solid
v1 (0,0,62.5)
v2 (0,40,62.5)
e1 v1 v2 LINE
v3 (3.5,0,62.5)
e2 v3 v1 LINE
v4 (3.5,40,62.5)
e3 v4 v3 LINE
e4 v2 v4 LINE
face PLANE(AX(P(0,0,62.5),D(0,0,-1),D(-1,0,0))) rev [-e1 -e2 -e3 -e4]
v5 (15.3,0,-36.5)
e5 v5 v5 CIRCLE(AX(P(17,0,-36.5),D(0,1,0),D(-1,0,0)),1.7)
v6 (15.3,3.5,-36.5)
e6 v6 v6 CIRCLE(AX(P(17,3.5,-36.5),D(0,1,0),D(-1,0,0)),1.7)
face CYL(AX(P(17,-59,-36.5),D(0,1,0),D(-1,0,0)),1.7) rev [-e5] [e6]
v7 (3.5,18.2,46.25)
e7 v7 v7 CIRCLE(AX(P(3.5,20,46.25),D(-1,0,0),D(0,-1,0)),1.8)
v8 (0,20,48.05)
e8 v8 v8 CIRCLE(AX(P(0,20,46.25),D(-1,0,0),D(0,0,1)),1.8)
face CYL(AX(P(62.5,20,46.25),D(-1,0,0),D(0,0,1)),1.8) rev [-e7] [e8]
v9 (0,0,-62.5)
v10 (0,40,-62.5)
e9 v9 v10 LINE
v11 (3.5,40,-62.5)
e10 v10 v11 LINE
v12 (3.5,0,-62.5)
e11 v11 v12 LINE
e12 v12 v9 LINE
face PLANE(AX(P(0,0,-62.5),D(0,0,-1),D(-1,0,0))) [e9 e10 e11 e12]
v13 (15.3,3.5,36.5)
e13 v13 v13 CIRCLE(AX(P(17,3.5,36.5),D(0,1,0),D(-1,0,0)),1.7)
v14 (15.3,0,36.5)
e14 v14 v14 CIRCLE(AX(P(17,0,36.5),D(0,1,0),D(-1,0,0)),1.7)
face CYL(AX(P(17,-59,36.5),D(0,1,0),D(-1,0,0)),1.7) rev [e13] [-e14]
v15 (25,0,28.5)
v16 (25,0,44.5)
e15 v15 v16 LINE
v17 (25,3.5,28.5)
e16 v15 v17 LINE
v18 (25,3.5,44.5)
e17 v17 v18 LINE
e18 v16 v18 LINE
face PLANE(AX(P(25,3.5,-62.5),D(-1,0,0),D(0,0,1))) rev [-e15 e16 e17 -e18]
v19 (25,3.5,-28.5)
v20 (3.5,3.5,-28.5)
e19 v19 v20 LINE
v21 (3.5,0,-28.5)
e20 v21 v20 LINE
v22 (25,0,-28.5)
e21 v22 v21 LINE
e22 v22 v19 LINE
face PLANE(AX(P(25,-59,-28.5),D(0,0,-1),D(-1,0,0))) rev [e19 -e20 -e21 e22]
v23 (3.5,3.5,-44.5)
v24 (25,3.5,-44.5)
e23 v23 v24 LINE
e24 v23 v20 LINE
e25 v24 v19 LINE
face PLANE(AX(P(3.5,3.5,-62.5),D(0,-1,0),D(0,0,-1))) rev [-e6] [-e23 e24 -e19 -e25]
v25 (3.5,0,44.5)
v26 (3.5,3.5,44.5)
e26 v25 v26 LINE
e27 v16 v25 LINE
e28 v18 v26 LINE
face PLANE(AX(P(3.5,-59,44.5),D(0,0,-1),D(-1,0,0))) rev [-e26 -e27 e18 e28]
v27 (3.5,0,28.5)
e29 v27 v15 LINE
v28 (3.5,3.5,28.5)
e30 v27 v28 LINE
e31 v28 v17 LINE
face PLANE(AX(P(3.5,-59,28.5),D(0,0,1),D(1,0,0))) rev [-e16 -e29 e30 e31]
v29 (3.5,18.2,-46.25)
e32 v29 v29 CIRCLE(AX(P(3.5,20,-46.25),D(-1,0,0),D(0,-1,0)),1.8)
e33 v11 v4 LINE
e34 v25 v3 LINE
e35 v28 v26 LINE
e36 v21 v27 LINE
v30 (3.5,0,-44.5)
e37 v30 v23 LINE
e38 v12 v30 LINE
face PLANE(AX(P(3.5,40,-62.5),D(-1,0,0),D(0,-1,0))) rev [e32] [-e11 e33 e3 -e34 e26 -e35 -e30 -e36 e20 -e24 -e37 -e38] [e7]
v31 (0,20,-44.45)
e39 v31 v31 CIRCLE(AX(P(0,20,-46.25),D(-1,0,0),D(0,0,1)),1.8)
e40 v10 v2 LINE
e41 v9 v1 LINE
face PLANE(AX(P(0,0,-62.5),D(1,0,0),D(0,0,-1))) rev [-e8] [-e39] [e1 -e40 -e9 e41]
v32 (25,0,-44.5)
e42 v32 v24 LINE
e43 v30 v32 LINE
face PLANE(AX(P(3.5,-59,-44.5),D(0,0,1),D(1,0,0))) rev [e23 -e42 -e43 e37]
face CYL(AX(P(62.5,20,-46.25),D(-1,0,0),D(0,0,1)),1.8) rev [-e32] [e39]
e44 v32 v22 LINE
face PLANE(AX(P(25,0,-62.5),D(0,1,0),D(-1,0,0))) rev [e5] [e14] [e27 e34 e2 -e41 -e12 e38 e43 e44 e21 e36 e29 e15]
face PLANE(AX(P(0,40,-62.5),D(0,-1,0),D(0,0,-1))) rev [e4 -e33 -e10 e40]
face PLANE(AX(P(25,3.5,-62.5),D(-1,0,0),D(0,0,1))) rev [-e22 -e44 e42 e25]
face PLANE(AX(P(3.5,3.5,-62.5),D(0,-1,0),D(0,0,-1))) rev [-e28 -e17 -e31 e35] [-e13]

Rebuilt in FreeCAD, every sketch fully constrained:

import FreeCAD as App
import Part
import Sketcher

V = App.Vector

doc = App.newDocument("Part")
body = doc.addObject("PartDesign::Body", "Body")

# Sketch on XY plane
sketch1 = doc.addObject("Sketcher::SketchObject", "Sketch")
body.addObject(sketch1)
sketch1.AttachmentSupport = (doc.XY_Plane, [""])
sketch1.MapMode = "FlatFace"
sketch1.addGeometry([
    Part.LineSegment(V(0, 40, 0), V(0, 0, 0)),  # 0
    Part.LineSegment(V(0, 0, 0), V(25, 0, 0)),  # 1
    Part.LineSegment(V(25, 0, 0), V(25, 3.5, 0)),  # 2
    Part.LineSegment(V(25, 3.5, 0), V(3.5, 3.5, 0)),  # 3
    Part.LineSegment(V(3.5, 3.5, 0), V(3.5, 40, 0)),  # 4
    Part.LineSegment(V(3.5, 40, 0), V(0, 40, 0)),  # 5
], False)
sketch1.addConstraint([
    Sketcher.Constraint("Coincident", 0, 2, 1, 1),
    Sketcher.Constraint("Coincident", 1, 2, 2, 1),
    Sketcher.Constraint("Coincident", 2, 2, 3, 1),
    Sketcher.Constraint("Coincident", 3, 2, 4, 1),
    Sketcher.Constraint("Coincident", 4, 2, 5, 1),
    Sketcher.Constraint("Coincident", 5, 2, 0, 1),
    Sketcher.Constraint("Vertical", 0),
    Sketcher.Constraint("Horizontal", 1),
    Sketcher.Constraint("Vertical", 2),
    Sketcher.Constraint("Horizontal", 3),
    Sketcher.Constraint("Vertical", 4),
    Sketcher.Constraint("Horizontal", 5),
    Sketcher.Constraint("Coincident", 0, 2, -1, 1),
    Sketcher.Constraint("Equal", 5, 2),
    Sketcher.Constraint("DistanceX", 1, 1, 1, 2, 25.0),
    Sketcher.Constraint("DistanceY", 0, 2, 0, 1, 40.0),
    Sketcher.Constraint("DistanceX", 3, 2, 3, 1, 21.5),
])
pad1 = doc.addObject("PartDesign::Pad", "Pad")
body.addObject(pad1)
pad1.Profile = sketch1
pad1.Type = "TwoLengths"
pad1.Length = 62.5
pad1.Length2 = 62.5

# Sketch on YZ plane
sketch2 = doc.addObject("Sketcher::SketchObject", "Sketch001")
body.addObject(sketch2)
sketch2.AttachmentSupport = (doc.YZ_Plane, [""])
sketch2.MapMode = "FlatFace"
sketch2.addGeometry(Part.Circle(V(20, -46.2, 0), V(0, 0, 1), 1.8), False)
sketch2.addConstraint([
    Sketcher.Constraint("Diameter", 0, 3.6),
    Sketcher.Constraint("DistanceX", -1, 1, 0, 3, 20.0),
    Sketcher.Constraint("DistanceY", 0, 3, -1, 1, 46.25),
])
pocket1 = doc.addObject("PartDesign::Pocket", "Pocket")
body.addObject(pocket1)
pocket1.Profile = sketch2
pocket1.Length = 62.5
pocket1.Reversed = True

# Sketch on YZ plane
sketch3 = doc.addObject("Sketcher::SketchObject", "Sketch002")
body.addObject(sketch3)
sketch3.AttachmentSupport = (doc.YZ_Plane, [""])
sketch3.MapMode = "FlatFace"
sketch3.addGeometry(Part.Circle(V(20, 46.2, 0), V(0, 0, 1), 1.8), False)
sketch3.addConstraint([
    Sketcher.Constraint("Diameter", 0, 3.6),
    Sketcher.Constraint("DistanceX", -1, 1, 0, 3, 20.0),
    Sketcher.Constraint("DistanceY", -1, 1, 0, 3, 46.25),
])
pocket2 = doc.addObject("PartDesign::Pocket", "Pocket001")
body.addObject(pocket2)
pocket2.Profile = sketch3
pocket2.Length = 62.5
pocket2.Reversed = True

# Sketch on XZ plane
sketch4 = doc.addObject("Sketcher::SketchObject", "Sketch003")
body.addObject(sketch4)
sketch4.AttachmentSupport = (doc.XZ_Plane, [""])
sketch4.MapMode = "FlatFace"
sketch4.AttachmentOffset = App.Placement(V(0, 0, -3.5), App.Rotation())
sketch4.addGeometry([
    Part.LineSegment(V(4, 44, 0), V(4, 62, 0)),
    Part.LineSegment(V(4, 62, 0), V(25, 62, 0)),
    Part.LineSegment(V(25, 62, 0), V(25, 44, 0)),
    Part.LineSegment(V(25, 44, 0), V(4, 44, 0)),
], False)
sketch4.addConstraint([
    Sketcher.Constraint("Coincident", 0, 2, 1, 1),
    Sketcher.Constraint("Coincident", 1, 2, 2, 1),
    Sketcher.Constraint("Coincident", 2, 2, 3, 1),
    Sketcher.Constraint("Coincident", 3, 2, 0, 1),
    Sketcher.Constraint("Vertical", 0),
    Sketcher.Constraint("Horizontal", 1),
    Sketcher.Constraint("Vertical", 2),
    Sketcher.Constraint("Horizontal", 3),
    Sketcher.Constraint("DistanceY", 0, 1, 0, 2, 18.0),
    Sketcher.Constraint("DistanceX", 1, 1, 1, 2, 21.5),
    Sketcher.Constraint("DistanceX", -1, 1, 1, 2, 25.0),
    Sketcher.Constraint("DistanceY", -1, 1, 0, 2, 62.5),
])
pocket3 = doc.addObject("PartDesign::Pocket", "Pocket002")
body.addObject(pocket3)
pocket3.Profile = sketch4
pocket3.Length = 62.5
pocket3.Reversed = True

# Sketch on XZ plane
sketch5 = doc.addObject("Sketcher::SketchObject", "Sketch004")
body.addObject(sketch5)
sketch5.AttachmentSupport = (doc.XZ_Plane, [""])
sketch5.MapMode = "FlatFace"
sketch5.AttachmentOffset = App.Placement(V(0, 0, -3.5), App.Rotation())
sketch5.addGeometry([
    Part.LineSegment(V(4, -62, 0), V(4, -44, 0)),
    Part.LineSegment(V(4, -44, 0), V(25, -44, 0)),
    Part.LineSegment(V(25, -44, 0), V(25, -62, 0)),
    Part.LineSegment(V(25, -62, 0), V(4, -62, 0)),
], False)
sketch5.addConstraint([
    Sketcher.Constraint("Coincident", 0, 2, 1, 1),
    Sketcher.Constraint("Coincident", 1, 2, 2, 1),
    Sketcher.Constraint("Coincident", 2, 2, 3, 1),
    Sketcher.Constraint("Coincident", 3, 2, 0, 1),
    Sketcher.Constraint("Vertical", 0),
    Sketcher.Constraint("Horizontal", 1),
    Sketcher.Constraint("Vertical", 2),
    Sketcher.Constraint("Horizontal", 3),
    Sketcher.Constraint("DistanceY", 0, 1, 0, 2, 18.0),
    Sketcher.Constraint("DistanceX", 1, 1, 1, 2, 21.5),
    Sketcher.Constraint("DistanceX", -1, 1, 1, 2, 25.0),
    Sketcher.Constraint("DistanceY", 0, 2, -1, 1, 44.5),
])
pocket4 = doc.addObject("PartDesign::Pocket", "Pocket003")
body.addObject(pocket4)
pocket4.Profile = sketch5
pocket4.Length = 62.5
pocket4.Reversed = True

# Sketch on XZ plane
sketch6 = doc.addObject("Sketcher::SketchObject", "Sketch005")
body.addObject(sketch6)
sketch6.AttachmentSupport = (doc.XZ_Plane, [""])
sketch6.MapMode = "FlatFace"
sketch6.AttachmentOffset = App.Placement(V(0, 0, -3.5), App.Rotation())
sketch6.addGeometry([
    Part.LineSegment(V(4, 0, 0), V(4, 28, 0)),
    Part.LineSegment(V(4, 28, 0), V(25, 28, 0)),
    Part.LineSegment(V(25, 28, 0), V(25, 0, 0)),
    Part.LineSegment(V(25, 0, 0), V(4, 0, 0)),
], False)
sketch6.addConstraint([
    Sketcher.Constraint("Coincident", 0, 2, 1, 1),
    Sketcher.Constraint("Coincident", 1, 2, 2, 1),
    Sketcher.Constraint("Coincident", 2, 2, 3, 1),
    Sketcher.Constraint("Coincident", 3, 2, 0, 1),
    Sketcher.Constraint("Vertical", 0),
    Sketcher.Constraint("Horizontal", 1),
    Sketcher.Constraint("Vertical", 2),
    Sketcher.Constraint("Horizontal", 3),
    Sketcher.Constraint("PointOnObject", 2, 2, -1),
    Sketcher.Constraint("DistanceX", 1, 1, 1, 2, 21.5),
    Sketcher.Constraint("DistanceY", 0, 1, 0, 2, 28.5),
    Sketcher.Constraint("DistanceX", -1, 1, 1, 2, 25.0),
])
pocket5 = doc.addObject("PartDesign::Pocket", "Pocket004")
body.addObject(pocket5)
pocket5.Profile = sketch6
pocket5.Length = 62.5
pocket5.Reversed = True

# Sketch on XZ plane
sketch7 = doc.addObject("Sketcher::SketchObject", "Sketch006")
body.addObject(sketch7)
sketch7.AttachmentSupport = (doc.XZ_Plane, [""])
sketch7.MapMode = "FlatFace"
sketch7.AttachmentOffset = App.Placement(V(0, 0, -3.5), App.Rotation())
sketch7.addGeometry([
    Part.LineSegment(V(4, -28, 0), V(4, 0, 0)),
    Part.LineSegment(V(4, 0, 0), V(25, 0, 0)),
    Part.LineSegment(V(25, 0, 0), V(25, -28, 0)),
    Part.LineSegment(V(25, -28, 0), V(4, -28, 0)),
], False)
sketch7.addConstraint([
    Sketcher.Constraint("Coincident", 0, 2, 1, 1),
    Sketcher.Constraint("Coincident", 1, 2, 2, 1),
    Sketcher.Constraint("Coincident", 2, 2, 3, 1),
    Sketcher.Constraint("Coincident", 3, 2, 0, 1),
    Sketcher.Constraint("Vertical", 0),
    Sketcher.Constraint("Horizontal", 1),
    Sketcher.Constraint("Vertical", 2),
    Sketcher.Constraint("Horizontal", 3),
    Sketcher.Constraint("PointOnObject", 0, 2, -1),
    Sketcher.Constraint("DistanceX", 1, 1, 1, 2, 21.5),
    Sketcher.Constraint("DistanceY", 0, 1, 0, 2, 28.5),
    Sketcher.Constraint("DistanceX", -1, 1, 1, 2, 25.0),
])
pocket6 = doc.addObject("PartDesign::Pocket", "Pocket005")
body.addObject(pocket6)
pocket6.Profile = sketch7
pocket6.Length = 62.5
pocket6.Reversed = True

# Sketch on XZ plane
sketch8 = doc.addObject("Sketcher::SketchObject", "Sketch007")
body.addObject(sketch8)
sketch8.AttachmentSupport = (doc.XZ_Plane, [""])
sketch8.MapMode = "FlatFace"
sketch8.AttachmentOffset = App.Placement(V(0, 0, -3.5), App.Rotation())
sketch8.addGeometry(Part.Circle(V(17, -36.5, 0), V(0, 0, 1), 1.7), False)
sketch8.addConstraint([
    Sketcher.Constraint("Diameter", 0, 3.4),
    Sketcher.Constraint("DistanceX", -1, 1, 0, 3, 17.0),
    Sketcher.Constraint("DistanceY", 0, 3, -1, 1, 36.5),
])
pocket7 = doc.addObject("PartDesign::Pocket", "Pocket006")
body.addObject(pocket7)
pocket7.Profile = sketch8
pocket7.Length = 62.5
pocket7.Reversed = True

# Sketch on XZ plane
sketch9 = doc.addObject("Sketcher::SketchObject", "Sketch008")
body.addObject(sketch9)
sketch9.AttachmentSupport = (doc.XZ_Plane, [""])
sketch9.MapMode = "FlatFace"
sketch9.AttachmentOffset = App.Placement(V(0, 0, -3.5), App.Rotation())
sketch9.addGeometry(Part.Circle(V(17, 36.5, 0), V(0, 0, 1), 1.7), False)
sketch9.addConstraint([
    Sketcher.Constraint("Diameter", 0, 3.4),
    Sketcher.Constraint("DistanceX", -1, 1, 0, 3, 17.0),
    Sketcher.Constraint("DistanceY", -1, 1, 0, 3, 36.5),
])
pocket8 = doc.addObject("PartDesign::Pocket", "Pocket007")
body.addObject(pocket8)
pocket8.Profile = sketch9
pocket8.Length = 62.5
pocket8.Reversed = True

doc.recompute()
